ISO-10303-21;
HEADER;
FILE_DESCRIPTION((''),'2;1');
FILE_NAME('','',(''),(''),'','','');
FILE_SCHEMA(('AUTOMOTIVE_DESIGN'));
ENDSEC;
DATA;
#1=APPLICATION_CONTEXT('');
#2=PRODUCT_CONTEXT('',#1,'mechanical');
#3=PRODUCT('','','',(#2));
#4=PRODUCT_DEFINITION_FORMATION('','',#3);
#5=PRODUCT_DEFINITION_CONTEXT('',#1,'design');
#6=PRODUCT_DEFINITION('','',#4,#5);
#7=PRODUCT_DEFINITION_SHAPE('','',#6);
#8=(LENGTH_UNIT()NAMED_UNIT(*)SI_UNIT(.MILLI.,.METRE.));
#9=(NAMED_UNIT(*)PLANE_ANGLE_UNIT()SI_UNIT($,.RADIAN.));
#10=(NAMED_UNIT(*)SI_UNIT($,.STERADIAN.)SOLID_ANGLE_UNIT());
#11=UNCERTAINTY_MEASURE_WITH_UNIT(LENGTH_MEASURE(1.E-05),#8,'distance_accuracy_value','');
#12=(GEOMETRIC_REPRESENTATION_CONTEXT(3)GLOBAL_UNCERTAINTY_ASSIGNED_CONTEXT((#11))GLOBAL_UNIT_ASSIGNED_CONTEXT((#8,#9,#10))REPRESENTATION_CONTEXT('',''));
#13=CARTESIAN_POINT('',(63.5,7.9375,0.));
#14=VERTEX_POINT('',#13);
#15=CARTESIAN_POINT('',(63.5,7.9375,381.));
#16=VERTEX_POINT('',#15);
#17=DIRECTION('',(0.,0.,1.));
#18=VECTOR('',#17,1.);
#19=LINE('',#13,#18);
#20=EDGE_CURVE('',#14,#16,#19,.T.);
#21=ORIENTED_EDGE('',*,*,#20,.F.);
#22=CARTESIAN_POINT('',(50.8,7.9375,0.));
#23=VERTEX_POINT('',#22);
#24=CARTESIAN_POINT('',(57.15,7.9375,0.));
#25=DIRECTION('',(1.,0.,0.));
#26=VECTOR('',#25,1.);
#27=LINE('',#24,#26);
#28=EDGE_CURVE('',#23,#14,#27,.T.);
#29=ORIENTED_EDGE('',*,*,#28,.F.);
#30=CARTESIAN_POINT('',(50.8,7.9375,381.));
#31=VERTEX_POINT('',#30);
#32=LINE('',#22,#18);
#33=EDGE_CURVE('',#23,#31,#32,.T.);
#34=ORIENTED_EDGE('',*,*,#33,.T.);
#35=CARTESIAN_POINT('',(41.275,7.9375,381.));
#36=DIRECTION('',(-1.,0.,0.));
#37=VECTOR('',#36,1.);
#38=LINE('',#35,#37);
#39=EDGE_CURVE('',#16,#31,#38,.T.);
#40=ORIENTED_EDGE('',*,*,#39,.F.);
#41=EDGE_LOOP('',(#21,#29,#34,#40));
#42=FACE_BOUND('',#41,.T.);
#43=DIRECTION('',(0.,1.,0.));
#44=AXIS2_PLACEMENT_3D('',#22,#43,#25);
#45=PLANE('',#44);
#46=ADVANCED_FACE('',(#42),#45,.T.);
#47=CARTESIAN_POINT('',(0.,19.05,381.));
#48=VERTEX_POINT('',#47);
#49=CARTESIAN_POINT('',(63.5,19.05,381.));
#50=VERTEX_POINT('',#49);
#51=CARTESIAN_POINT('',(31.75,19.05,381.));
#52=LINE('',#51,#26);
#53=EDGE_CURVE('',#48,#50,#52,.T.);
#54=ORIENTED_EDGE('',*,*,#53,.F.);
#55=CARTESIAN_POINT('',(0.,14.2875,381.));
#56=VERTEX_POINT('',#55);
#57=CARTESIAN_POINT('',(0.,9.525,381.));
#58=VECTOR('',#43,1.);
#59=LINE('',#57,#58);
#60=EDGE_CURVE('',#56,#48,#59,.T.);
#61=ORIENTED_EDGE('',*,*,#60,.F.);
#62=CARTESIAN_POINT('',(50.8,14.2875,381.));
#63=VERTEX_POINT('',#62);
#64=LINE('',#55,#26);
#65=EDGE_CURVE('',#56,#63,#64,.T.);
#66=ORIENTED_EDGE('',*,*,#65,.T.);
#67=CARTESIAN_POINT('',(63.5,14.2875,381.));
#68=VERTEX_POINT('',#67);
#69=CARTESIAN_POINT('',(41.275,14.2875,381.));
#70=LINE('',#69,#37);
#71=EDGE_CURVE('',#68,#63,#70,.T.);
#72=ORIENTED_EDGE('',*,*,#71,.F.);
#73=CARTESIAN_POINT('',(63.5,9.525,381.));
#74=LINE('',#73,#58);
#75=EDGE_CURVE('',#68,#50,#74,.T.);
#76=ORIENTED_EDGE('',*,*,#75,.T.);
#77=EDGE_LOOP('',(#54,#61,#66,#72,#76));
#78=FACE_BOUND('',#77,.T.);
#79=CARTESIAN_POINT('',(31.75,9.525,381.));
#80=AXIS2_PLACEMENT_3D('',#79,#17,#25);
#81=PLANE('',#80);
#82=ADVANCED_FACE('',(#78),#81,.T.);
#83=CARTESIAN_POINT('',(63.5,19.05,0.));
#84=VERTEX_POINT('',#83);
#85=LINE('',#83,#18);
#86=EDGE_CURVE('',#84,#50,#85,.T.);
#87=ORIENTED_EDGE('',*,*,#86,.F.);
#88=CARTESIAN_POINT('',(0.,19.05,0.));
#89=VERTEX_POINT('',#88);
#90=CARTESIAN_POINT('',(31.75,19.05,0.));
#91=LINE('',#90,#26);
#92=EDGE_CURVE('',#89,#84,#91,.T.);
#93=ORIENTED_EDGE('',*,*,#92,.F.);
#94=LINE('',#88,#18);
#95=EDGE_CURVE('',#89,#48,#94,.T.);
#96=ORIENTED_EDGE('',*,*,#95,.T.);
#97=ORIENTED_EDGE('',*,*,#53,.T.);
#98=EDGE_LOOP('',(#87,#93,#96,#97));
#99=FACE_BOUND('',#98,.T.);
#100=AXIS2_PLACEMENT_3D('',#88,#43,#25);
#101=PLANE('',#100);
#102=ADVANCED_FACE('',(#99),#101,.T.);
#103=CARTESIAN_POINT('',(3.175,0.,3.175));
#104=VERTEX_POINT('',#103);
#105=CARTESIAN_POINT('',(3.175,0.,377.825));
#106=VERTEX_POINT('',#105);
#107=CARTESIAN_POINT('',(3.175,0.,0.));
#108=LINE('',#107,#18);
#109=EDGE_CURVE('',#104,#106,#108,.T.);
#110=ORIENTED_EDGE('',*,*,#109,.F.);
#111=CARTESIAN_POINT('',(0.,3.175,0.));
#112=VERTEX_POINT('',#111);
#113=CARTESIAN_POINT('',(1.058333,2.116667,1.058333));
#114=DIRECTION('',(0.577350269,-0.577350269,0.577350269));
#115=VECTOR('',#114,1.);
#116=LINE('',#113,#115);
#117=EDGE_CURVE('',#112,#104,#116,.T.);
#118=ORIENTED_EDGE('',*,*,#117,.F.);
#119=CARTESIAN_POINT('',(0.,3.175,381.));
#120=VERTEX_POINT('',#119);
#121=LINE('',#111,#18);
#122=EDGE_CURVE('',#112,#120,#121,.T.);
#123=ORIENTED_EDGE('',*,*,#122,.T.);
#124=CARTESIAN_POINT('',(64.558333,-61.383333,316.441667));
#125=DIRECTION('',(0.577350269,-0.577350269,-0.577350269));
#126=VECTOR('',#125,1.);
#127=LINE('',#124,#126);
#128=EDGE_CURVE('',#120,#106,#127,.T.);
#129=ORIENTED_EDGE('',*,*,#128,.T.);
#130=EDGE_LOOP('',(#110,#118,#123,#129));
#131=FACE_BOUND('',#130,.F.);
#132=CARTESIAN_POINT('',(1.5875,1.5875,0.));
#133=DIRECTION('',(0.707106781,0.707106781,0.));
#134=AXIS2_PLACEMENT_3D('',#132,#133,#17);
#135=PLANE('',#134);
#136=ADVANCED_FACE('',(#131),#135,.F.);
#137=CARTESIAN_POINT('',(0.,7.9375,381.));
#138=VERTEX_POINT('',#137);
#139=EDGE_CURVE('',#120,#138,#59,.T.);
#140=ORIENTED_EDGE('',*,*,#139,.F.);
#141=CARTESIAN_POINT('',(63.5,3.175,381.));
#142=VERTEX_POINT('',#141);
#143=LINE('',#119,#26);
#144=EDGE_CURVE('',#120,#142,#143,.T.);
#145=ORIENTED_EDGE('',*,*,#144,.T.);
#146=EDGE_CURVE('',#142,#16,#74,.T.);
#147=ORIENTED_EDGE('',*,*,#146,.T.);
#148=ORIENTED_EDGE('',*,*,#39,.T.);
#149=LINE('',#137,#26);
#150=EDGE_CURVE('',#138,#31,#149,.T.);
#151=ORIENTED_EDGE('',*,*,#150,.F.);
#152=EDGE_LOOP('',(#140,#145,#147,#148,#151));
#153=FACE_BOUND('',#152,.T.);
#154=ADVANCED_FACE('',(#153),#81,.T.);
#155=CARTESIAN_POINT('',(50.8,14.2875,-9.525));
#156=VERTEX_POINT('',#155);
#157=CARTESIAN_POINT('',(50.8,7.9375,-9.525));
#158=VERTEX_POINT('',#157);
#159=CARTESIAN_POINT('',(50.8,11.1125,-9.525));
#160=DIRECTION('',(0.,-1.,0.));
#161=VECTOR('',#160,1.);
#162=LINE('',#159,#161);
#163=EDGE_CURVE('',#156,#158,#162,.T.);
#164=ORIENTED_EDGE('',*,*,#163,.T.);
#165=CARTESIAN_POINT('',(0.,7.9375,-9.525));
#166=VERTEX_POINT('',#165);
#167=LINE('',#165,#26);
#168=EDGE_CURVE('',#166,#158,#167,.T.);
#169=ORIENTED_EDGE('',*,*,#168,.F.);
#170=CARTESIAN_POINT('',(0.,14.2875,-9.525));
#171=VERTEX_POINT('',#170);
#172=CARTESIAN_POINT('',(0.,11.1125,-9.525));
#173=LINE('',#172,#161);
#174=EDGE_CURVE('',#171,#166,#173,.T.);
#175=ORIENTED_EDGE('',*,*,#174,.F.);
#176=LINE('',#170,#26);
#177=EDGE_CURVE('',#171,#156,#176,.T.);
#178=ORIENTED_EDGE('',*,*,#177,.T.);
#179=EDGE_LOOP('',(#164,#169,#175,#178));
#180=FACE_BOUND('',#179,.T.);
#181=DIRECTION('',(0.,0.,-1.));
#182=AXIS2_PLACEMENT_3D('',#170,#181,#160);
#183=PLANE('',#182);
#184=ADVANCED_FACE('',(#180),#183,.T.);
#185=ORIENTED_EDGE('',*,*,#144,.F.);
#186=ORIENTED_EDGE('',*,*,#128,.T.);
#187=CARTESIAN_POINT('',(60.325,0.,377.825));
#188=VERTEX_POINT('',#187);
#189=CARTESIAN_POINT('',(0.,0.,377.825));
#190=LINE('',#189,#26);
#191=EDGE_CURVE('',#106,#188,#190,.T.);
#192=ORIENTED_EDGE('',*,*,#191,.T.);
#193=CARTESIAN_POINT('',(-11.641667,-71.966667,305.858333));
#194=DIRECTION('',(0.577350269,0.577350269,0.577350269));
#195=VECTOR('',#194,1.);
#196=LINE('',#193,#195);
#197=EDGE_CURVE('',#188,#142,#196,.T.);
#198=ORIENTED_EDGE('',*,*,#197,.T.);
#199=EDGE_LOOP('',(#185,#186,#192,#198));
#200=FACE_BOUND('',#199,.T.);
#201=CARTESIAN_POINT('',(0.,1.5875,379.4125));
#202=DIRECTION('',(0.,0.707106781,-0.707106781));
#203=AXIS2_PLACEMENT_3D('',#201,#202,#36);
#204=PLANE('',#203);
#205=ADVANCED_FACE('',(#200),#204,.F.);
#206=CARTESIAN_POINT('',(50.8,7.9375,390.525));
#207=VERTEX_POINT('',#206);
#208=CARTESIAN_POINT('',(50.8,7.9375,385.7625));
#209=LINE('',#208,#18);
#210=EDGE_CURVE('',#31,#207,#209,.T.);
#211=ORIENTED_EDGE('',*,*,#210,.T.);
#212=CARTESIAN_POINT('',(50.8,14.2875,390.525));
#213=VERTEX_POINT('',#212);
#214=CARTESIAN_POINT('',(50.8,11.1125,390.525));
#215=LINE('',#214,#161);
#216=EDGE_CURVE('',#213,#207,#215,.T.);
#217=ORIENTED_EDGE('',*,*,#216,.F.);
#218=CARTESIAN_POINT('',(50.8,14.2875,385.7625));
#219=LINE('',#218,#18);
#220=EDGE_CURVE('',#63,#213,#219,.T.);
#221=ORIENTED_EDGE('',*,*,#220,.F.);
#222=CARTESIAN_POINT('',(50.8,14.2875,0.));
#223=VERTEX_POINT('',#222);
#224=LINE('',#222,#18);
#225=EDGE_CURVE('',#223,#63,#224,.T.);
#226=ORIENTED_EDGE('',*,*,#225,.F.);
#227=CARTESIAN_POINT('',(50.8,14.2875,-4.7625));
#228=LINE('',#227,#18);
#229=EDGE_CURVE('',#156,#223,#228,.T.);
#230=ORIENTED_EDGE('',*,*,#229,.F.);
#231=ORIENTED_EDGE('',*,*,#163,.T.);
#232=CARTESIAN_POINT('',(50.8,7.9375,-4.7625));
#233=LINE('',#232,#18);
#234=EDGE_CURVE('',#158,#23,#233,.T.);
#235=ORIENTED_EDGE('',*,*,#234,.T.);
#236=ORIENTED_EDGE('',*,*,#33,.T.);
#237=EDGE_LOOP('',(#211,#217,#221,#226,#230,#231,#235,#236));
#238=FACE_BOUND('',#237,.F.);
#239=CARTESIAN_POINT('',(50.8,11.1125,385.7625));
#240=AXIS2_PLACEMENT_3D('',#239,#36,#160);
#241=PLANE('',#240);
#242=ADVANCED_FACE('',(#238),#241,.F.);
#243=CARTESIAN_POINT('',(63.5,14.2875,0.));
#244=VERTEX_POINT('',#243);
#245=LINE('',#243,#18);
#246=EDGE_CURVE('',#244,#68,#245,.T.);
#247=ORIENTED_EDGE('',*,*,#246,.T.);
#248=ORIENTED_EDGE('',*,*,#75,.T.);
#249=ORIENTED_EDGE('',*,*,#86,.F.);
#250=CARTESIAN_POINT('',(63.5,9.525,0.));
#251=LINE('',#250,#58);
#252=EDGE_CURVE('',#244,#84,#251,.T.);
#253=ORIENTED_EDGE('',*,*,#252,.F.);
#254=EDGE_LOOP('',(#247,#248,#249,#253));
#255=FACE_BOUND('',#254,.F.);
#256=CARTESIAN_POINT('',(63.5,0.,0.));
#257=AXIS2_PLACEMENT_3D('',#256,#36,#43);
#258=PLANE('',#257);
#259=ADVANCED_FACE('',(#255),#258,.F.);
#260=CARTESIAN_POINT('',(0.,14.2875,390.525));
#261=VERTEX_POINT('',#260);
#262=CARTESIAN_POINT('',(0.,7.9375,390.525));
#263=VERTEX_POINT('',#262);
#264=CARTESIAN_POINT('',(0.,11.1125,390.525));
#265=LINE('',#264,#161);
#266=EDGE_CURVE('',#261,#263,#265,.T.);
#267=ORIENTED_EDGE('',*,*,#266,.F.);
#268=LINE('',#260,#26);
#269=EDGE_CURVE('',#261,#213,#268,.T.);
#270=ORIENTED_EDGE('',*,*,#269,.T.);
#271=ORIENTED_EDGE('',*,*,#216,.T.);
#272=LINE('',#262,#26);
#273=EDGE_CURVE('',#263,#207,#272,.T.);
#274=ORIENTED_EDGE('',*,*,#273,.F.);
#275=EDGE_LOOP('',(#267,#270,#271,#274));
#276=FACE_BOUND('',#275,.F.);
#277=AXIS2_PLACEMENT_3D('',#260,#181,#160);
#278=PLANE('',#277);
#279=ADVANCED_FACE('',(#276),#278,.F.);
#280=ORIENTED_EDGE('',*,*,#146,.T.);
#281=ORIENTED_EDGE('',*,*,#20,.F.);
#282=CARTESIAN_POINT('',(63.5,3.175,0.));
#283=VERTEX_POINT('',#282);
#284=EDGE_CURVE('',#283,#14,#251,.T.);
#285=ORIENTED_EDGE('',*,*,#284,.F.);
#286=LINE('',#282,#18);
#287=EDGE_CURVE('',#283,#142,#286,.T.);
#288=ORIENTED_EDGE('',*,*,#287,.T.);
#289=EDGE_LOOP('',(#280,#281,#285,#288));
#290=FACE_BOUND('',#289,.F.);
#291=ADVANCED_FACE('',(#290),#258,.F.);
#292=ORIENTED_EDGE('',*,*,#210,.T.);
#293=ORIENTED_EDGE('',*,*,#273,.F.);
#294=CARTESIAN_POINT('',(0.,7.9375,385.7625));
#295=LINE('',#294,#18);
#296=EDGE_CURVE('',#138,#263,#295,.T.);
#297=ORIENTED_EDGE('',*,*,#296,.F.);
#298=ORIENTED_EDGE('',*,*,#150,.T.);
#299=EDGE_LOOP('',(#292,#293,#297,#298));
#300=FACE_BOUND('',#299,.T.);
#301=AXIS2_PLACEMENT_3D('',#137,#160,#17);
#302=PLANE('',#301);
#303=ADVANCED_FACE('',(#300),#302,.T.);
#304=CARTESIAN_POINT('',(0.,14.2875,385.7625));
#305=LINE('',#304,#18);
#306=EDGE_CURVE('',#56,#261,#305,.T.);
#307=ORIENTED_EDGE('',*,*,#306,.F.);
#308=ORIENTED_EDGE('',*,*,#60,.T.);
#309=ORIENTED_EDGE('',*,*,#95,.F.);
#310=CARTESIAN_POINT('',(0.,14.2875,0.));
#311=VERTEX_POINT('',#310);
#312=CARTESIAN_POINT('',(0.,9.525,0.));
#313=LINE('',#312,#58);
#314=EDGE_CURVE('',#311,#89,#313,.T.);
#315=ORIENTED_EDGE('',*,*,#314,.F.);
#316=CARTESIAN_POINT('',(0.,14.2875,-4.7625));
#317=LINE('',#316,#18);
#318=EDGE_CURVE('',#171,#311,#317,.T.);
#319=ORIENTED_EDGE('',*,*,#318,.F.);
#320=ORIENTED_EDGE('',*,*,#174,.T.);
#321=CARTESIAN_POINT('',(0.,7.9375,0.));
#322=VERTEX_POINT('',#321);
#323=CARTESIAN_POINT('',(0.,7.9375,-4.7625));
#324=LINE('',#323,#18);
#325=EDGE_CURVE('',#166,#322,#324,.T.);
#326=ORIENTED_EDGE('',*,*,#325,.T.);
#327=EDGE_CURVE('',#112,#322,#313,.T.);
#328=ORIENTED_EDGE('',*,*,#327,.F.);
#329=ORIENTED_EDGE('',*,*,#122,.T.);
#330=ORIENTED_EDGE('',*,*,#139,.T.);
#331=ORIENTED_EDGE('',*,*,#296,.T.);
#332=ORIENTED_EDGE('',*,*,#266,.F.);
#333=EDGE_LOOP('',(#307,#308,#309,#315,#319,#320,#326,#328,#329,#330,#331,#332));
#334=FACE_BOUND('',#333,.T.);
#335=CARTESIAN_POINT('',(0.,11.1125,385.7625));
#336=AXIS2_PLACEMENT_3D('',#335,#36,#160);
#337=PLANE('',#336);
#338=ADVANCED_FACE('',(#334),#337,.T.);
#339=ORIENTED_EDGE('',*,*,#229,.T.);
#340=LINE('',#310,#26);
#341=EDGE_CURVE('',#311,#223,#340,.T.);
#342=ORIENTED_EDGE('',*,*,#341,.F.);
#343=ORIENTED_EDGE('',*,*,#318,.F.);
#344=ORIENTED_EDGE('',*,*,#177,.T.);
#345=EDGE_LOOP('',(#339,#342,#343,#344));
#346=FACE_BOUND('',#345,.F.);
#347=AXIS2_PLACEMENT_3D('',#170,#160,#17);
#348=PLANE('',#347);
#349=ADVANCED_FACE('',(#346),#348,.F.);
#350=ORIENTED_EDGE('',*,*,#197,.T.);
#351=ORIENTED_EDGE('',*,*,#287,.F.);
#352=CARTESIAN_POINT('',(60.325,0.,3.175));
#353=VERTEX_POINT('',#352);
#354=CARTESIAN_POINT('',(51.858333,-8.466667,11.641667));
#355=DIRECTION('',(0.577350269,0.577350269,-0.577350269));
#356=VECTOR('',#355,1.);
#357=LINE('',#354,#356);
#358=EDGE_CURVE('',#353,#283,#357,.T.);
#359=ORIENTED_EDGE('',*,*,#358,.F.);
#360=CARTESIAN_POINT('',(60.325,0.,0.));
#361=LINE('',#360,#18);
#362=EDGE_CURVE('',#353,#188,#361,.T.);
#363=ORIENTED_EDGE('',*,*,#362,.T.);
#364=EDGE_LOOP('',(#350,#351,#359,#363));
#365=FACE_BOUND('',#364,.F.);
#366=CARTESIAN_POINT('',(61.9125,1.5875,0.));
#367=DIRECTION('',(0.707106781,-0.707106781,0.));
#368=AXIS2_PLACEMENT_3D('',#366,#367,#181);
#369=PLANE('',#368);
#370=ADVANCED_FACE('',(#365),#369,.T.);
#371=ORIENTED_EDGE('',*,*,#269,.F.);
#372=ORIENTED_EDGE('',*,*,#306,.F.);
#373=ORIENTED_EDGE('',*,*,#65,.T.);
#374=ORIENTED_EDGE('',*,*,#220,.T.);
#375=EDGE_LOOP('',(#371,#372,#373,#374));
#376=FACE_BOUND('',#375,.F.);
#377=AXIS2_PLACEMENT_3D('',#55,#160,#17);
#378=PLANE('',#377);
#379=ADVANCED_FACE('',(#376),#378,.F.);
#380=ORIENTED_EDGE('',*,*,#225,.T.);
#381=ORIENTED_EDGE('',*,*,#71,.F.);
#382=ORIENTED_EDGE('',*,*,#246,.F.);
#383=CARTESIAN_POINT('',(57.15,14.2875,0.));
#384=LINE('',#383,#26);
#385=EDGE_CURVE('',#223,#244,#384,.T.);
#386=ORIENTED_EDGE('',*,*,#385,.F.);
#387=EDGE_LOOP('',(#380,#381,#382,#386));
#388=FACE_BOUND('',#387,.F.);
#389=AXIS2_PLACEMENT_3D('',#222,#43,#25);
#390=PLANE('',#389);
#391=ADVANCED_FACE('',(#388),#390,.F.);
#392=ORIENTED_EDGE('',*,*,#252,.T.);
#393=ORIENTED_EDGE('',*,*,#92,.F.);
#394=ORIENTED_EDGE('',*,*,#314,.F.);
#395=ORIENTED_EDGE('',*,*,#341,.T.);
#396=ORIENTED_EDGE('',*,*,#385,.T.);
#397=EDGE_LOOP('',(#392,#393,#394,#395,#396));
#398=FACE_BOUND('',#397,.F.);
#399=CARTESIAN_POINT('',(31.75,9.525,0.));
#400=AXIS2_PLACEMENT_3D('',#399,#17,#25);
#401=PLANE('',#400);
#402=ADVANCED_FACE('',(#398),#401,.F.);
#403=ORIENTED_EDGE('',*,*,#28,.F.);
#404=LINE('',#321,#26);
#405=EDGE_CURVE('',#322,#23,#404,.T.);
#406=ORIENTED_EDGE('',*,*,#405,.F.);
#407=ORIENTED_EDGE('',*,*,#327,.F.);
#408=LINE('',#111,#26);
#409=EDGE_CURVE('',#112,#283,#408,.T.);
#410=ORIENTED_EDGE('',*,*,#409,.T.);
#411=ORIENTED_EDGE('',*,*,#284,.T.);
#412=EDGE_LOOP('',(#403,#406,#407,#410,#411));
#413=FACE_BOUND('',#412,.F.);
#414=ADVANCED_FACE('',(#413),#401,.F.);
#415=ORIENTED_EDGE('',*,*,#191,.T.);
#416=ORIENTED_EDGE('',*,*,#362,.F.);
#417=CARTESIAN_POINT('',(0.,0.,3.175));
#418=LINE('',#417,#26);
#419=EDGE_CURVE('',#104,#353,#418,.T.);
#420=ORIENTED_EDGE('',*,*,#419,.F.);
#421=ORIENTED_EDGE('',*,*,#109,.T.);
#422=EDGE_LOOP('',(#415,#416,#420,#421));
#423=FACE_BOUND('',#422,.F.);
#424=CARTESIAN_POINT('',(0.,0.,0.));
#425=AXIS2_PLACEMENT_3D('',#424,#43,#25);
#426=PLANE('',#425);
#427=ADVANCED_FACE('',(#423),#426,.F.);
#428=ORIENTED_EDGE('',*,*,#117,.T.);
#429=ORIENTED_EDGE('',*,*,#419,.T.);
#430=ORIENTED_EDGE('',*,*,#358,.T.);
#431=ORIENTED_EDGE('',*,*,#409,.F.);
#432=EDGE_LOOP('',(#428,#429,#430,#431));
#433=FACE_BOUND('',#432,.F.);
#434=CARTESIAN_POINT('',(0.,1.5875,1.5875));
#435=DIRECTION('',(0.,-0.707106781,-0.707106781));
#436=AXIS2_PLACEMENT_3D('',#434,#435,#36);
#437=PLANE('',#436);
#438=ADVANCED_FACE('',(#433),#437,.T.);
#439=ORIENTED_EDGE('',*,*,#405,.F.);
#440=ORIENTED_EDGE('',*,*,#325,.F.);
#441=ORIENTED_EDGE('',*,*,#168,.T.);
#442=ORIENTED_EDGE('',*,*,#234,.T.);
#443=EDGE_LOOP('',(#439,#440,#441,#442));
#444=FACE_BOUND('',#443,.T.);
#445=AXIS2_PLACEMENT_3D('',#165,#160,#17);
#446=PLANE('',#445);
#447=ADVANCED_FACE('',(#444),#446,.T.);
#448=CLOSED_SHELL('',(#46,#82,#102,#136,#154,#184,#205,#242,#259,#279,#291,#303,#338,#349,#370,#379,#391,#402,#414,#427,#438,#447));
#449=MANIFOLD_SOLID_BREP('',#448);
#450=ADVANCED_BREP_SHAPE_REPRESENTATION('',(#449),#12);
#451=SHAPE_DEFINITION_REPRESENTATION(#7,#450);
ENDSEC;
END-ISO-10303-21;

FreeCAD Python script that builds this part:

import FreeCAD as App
import Part
import Sketcher

V = App.Vector
Q = App.Units.Quantity


def edges_at(feature, points):
    """Names of the edges that pass closest to the given points."""
    edges = feature.Shape.Edges
    near = lambda p: min(range(len(edges)), key=lambda i: edges[i].distToShape(Part.Vertex(*p))[0])
    return sorted({f"Edge{near(p) + 1}" for p in points})

doc = App.newDocument("Part")
body = doc.addObject("PartDesign::Body", "Body")

# Sketch on XY plane
sketch1 = body.newObject("Sketcher::SketchObject", "Sketch")
sketch1.AttachmentSupport = (doc.getObject("XY_Plane"), [""])
sketch1.MapMode = "FlatFace"
sketch1.addGeometry([
    Part.LineSegment(V(0, 19.05, 0), V(0, 0, 0)),
    Part.LineSegment(V(0, 0, 0), V(63.5, 0, 0)),
    Part.LineSegment(V(63.5, 0, 0), V(63.5, 19.05, 0)),
    Part.LineSegment(V(63.5, 19.05, 0), V(0, 19.05, 0)),
], False)
sketch1.addConstraint([
    Sketcher.Constraint("Coincident", 0, 2, 1, 1),
    Sketcher.Constraint("Coincident", 1, 2, 2, 1),
    Sketcher.Constraint("Coincident", 2, 2, 3, 1),
    Sketcher.Constraint("Coincident", 3, 2, 0, 1),
    Sketcher.Constraint("Vertical", 0),
    Sketcher.Constraint("Horizontal", 1),
    Sketcher.Constraint("Vertical", 2),
    Sketcher.Constraint("Horizontal", 3),
    Sketcher.Constraint("Coincident", 0, 2, -1, 1),
    Sketcher.Constraint("DistanceX", 1, 1, 1, 2, Q("2.5 in")),
    Sketcher.Constraint("DistanceY", 0, 2, 0, 1, Q("0.75 in")),
])
pad1 = body.newObject("PartDesign::Pad", "Pad")
pad1.Profile = sketch1
pad1.Length = Q("15 in")
doc.recompute()

chamfer = body.newObject("PartDesign::Chamfer", "Chamfer")
chamfer.Base = (pad1, edges_at(pad1, [
    (0, 0, 190.5),
    (63.5, 0, 190.5),
    (31.75, 0, 381),
    (31.75, 0, 0),
]))
chamfer.Size = Q("0.125 in")

# Sketch on XY plane
sketch2 = body.newObject("Sketcher::SketchObject", "Sketch001")
sketch2.AttachmentSupport = (doc.getObject("XY_Plane"), [""])
sketch2.MapMode = "FlatFace"
sketch2.addGeometry([
    Part.LineSegment(V(50.8, 7.9375, 0), V(50.8, 14.2875, 0)),
    Part.LineSegment(V(50.8, 14.2875, 0), V(63.5, 14.2875, 0)),
    Part.LineSegment(V(63.5, 14.2875, 0), V(63.5, 7.9375, 0)),
    Part.LineSegment(V(63.5, 7.9375, 0), V(50.8, 7.9375, 0)),
], False)
sketch2.addConstraint([
    Sketcher.Constraint("Coincident", 0, 2, 1, 1),
    Sketcher.Constraint("Coincident", 1, 2, 2, 1),
    Sketcher.Constraint("Coincident", 2, 2, 3, 1),
    Sketcher.Constraint("Coincident", 3, 2, 0, 1),
    Sketcher.Constraint("Vertical", 0),
    Sketcher.Constraint("Horizontal", 1),
    Sketcher.Constraint("Vertical", 2),
    Sketcher.Constraint("Horizontal", 3),
    Sketcher.Constraint("DistanceX", 1, 1, 1, 2, Q("0.5 in")),
    Sketcher.Constraint("DistanceX", -1, 1, 0, 2, Q("2 in")),
    Sketcher.Constraint("DistanceY", 0, 1, 0, 2, Q("0.25 in")),
    Sketcher.Constraint("DistanceY", -1, 1, 0, 2, Q("0.5625 in")),
])
pocket1 = body.newObject("PartDesign::Pocket", "Pocket")
pocket1.Profile = sketch2
pocket1.Type = "ThroughAll"
pocket1.Reversed = True

# Sketch on YZ plane
sketch3 = body.newObject("Sketcher::SketchObject", "Sketch002")
sketch3.AttachmentSupport = (doc.getObject("YZ_Plane"), [""])
sketch3.MapMode = "FlatFace"
sketch3.addGeometry([
    Part.LineSegment(V(14.2875, 390.525, 0), V(14.2875, 381, 0)),  # 0
    Part.LineSegment(V(14.2875, 381, 0), V(7.9375, 381, 0)),  # 1
    Part.LineSegment(V(7.9375, 381, 0), V(7.9375, 390.525, 0)),  # 2
    Part.LineSegment(V(7.9375, 390.525, 0), V(14.2875, 390.525, 0)),  # 3
    Part.LineSegment(V(14.2875, 0, 0), V(14.2875, -9.525, 0)),  # 4
    Part.LineSegment(V(14.2875, -9.525, 0), V(7.9375, -9.525, 0)),  # 5
    Part.LineSegment(V(7.9375, -9.525, 0), V(7.9375, 0, 0)),  # 6
    Part.LineSegment(V(7.9375, 0, 0), V(14.2875, 0, 0)),  # 7
], False)
sketch3.addConstraint([
    Sketcher.Constraint("Coincident", 0, 2, 1, 1),
    Sketcher.Constraint("Coincident", 1, 2, 2, 1),
    Sketcher.Constraint("Coincident", 2, 2, 3, 1),
    Sketcher.Constraint("Coincident", 3, 2, 0, 1),
    Sketcher.Constraint("Coincident", 4, 2, 5, 1),
    Sketcher.Constraint("Coincident", 5, 2, 6, 1),
    Sketcher.Constraint("Coincident", 6, 2, 7, 1),
    Sketcher.Constraint("Coincident", 7, 2, 4, 1),
    Sketcher.Constraint("Vertical", 0),
    Sketcher.Constraint("Horizontal", 1),
    Sketcher.Constraint("Vertical", 2),
    Sketcher.Constraint("Horizontal", 3),
    Sketcher.Constraint("Vertical", 4),
    Sketcher.Constraint("Horizontal", 5),
    Sketcher.Constraint("Vertical", 6),
    Sketcher.Constraint("Horizontal", 7),
    Sketcher.Constraint("PointOnObject", 6, 2, -1),
    Sketcher.Constraint("Vertical", 3, 2, 4, 2),
    Sketcher.Constraint("Vertical", 2, 2, 5, 2),
    Sketcher.Constraint("Equal", 2, 4),
    Sketcher.Constraint("DistanceY", -1, 1, 0, 2, Q("15 in")),
    Sketcher.Constraint("DistanceX", 1, 2, 1, 1, Q("0.25 in")),
    Sketcher.Constraint("DistanceY", 0, 2, 0, 1, Q("0.375 in")),
    Sketcher.Constraint("DistanceX", -1, 1, 0, 2, Q("0.5625 in")),
])
pad2 = body.newObject("PartDesign::Pad", "Pad001")
pad2.Profile = sketch3
pad2.Length = Q("2 in")

doc.recompute()
